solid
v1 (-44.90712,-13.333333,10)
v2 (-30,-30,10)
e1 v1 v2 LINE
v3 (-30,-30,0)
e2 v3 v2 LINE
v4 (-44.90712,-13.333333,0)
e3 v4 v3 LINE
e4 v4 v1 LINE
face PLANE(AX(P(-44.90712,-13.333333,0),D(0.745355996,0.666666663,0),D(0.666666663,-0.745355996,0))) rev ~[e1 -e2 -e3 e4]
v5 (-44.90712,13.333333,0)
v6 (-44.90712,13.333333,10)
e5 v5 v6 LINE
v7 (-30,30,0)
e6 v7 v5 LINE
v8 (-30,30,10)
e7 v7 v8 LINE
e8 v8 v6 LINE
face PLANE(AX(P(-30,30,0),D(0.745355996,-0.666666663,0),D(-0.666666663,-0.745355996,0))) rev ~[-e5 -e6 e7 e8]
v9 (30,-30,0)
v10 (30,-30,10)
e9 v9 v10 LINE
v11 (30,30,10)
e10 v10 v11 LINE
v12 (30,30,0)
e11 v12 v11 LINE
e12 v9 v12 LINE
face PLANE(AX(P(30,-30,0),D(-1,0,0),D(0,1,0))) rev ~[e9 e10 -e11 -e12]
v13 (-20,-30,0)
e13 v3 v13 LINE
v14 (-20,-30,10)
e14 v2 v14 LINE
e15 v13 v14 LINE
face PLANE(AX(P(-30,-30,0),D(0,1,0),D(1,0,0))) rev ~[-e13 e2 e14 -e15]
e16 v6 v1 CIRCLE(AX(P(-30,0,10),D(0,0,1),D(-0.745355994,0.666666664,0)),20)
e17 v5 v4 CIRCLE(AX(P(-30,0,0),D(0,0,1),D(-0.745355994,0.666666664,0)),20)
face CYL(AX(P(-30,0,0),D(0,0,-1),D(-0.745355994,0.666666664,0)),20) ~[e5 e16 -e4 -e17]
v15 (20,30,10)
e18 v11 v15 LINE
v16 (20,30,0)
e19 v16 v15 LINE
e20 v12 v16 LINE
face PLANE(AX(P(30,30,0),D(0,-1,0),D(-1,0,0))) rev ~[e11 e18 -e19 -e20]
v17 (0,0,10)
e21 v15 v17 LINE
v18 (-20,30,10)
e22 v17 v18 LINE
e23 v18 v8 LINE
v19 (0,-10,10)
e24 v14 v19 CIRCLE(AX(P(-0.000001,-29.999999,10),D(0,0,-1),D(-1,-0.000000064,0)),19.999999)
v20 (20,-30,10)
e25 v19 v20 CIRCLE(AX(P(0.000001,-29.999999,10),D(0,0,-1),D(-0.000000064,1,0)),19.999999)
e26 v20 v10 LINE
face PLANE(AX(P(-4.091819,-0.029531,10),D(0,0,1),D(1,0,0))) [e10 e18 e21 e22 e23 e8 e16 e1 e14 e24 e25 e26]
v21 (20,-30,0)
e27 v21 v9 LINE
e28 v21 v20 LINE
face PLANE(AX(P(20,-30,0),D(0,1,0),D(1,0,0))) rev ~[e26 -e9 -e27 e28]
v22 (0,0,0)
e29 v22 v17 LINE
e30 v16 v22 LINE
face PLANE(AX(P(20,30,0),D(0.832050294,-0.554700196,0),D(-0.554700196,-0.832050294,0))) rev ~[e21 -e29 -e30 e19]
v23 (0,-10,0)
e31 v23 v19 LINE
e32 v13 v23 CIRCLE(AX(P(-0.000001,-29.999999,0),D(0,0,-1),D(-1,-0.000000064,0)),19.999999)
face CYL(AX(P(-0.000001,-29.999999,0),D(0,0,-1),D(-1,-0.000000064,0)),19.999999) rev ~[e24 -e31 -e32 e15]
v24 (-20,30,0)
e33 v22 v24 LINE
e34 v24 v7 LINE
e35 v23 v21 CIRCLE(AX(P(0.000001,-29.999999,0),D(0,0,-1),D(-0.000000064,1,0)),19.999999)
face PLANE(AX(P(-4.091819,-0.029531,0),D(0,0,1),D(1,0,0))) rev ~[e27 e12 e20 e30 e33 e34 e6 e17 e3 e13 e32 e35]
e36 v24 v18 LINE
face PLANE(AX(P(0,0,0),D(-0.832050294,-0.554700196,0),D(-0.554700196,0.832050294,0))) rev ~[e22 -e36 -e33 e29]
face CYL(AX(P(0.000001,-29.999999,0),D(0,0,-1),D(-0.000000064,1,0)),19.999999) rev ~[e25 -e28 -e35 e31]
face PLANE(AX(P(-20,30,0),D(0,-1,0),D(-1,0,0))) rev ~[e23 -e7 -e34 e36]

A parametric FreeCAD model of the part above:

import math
import FreeCAD as App
import Part
import Sketcher

V = App.Vector
Q = App.Units.Quantity

doc = App.newDocument("Part")
body = doc.addObject("PartDesign::Body", "Body")

# Sketch on XY plane
sketch1 = doc.addObject("Sketcher::SketchObject", "Sketch")
body.addObject(sketch1)
sketch1.AttachmentSupport = (doc.XY_Plane, [""])
sketch1.MapMode = "FlatFace"
sketch1.addGeometry([
    Part.LineSegment(V(20, 30, 0), V(0, 0, 0)),  # 0
    Part.LineSegment(V(0, 0, 0), V(-20, 30, 0)),  # 1
    Part.LineSegment(V(-20, 30, 0), V(-30, 30, 0)),  # 2
    Part.LineSegment(V(-30, 30, 0), V(-45, 13, 0)),  # 3
    Part.ArcOfCircle(Part.Circle(V(-30, 0, 0), V(0, 0, 1), 20), math.radians(138), math.radians(222)),  # 4
    Part.LineSegment(V(-45, -13, 0), V(-30, -30, 0)),  # 5
    Part.LineSegment(V(-30, -30, 0), V(-20, -30, 0)),  # 6
    Part.ArcOfCircle(Part.Circle(V(0, -30, 0), V(0, 0, 1), 20), math.radians(90), math.radians(180)),  # 7
    Part.ArcOfCircle(Part.Circle(V(0, -30, 0), V(0, 0, 1), 20), math.radians(0), math.radians(90)),  # 8
    Part.LineSegment(V(20, -30, 0), V(30, -30, 0)),  # 9
    Part.LineSegment(V(30, -30, 0), V(30, 30, 0)),  # 10
    Part.LineSegment(V(30, 30, 0), V(20, 30, 0)),  # 11
], False)
sketch1.addConstraint([
    Sketcher.Constraint("Coincident", 0, 2, 1, 1),
    Sketcher.Constraint("Coincident", 1, 2, 2, 1),
    Sketcher.Constraint("Coincident", 2, 2, 3, 1),
    Sketcher.Constraint("Tangent", 3, 2, 4, 1),
    Sketcher.Constraint("Tangent", 4, 2, 5, 1),
    Sketcher.Constraint("Coincident", 5, 2, 6, 1),
    Sketcher.Constraint("Coincident", 6, 2, 7, 2),
    Sketcher.Constraint("Tangent", 7, 1, 8, 2),
    Sketcher.Constraint("Coincident", 8, 1, 9, 1),
    Sketcher.Constraint("Coincident", 9, 2, 10, 1),
    Sketcher.Constraint("Coincident", 10, 2, 11, 1),
    Sketcher.Constraint("Coincident", 11, 2, 0, 1),
    Sketcher.Constraint("Horizontal", 2),
    Sketcher.Constraint("Horizontal", 6),
    Sketcher.Constraint("Horizontal", 9),
    Sketcher.Constraint("Vertical", 10),
    Sketcher.Constraint("Horizontal", 11),
    Sketcher.Constraint("Coincident", 0, 2, -1, 1),
    Sketcher.Constraint("Equal", 4, 7),
    Sketcher.Constraint("Equal", 7, 8),
    Sketcher.Constraint("Symmetric", 1, 2, 8, 1, -1, 1),
    Sketcher.Constraint("Symmetric", 5, 2, 10, 2, -1, 1),
    Sketcher.Constraint("Symmetric", 6, 2, 8, 1, -2),
    Sketcher.Constraint("Symmetric", 3, 2, 4, 2, -1),
    Sketcher.Constraint("PointOnObject", 7, 1, -2),
    Sketcher.Constraint("Horizontal", 8, 3, 5, 2),
    Sketcher.Constraint("Vertical", 4, 3, 2, 2),
    Sketcher.Constraint("Vertical", 8, 1, 11, 2),
    Sketcher.Constraint("Radius", 4, Q("20 mm")),
    Sketcher.Constraint("DistanceX", 2, 2, 2, 1, Q("10 mm")),
    Sketcher.Constraint("DistanceY", 10, 1, 10, 2, Q("60 mm")),
])
pad1 = doc.addObject("PartDesign::Pad", "Pad")
body.addObject(pad1)
pad1.Profile = sketch1
pad1.Length = 10

doc.recompute()
